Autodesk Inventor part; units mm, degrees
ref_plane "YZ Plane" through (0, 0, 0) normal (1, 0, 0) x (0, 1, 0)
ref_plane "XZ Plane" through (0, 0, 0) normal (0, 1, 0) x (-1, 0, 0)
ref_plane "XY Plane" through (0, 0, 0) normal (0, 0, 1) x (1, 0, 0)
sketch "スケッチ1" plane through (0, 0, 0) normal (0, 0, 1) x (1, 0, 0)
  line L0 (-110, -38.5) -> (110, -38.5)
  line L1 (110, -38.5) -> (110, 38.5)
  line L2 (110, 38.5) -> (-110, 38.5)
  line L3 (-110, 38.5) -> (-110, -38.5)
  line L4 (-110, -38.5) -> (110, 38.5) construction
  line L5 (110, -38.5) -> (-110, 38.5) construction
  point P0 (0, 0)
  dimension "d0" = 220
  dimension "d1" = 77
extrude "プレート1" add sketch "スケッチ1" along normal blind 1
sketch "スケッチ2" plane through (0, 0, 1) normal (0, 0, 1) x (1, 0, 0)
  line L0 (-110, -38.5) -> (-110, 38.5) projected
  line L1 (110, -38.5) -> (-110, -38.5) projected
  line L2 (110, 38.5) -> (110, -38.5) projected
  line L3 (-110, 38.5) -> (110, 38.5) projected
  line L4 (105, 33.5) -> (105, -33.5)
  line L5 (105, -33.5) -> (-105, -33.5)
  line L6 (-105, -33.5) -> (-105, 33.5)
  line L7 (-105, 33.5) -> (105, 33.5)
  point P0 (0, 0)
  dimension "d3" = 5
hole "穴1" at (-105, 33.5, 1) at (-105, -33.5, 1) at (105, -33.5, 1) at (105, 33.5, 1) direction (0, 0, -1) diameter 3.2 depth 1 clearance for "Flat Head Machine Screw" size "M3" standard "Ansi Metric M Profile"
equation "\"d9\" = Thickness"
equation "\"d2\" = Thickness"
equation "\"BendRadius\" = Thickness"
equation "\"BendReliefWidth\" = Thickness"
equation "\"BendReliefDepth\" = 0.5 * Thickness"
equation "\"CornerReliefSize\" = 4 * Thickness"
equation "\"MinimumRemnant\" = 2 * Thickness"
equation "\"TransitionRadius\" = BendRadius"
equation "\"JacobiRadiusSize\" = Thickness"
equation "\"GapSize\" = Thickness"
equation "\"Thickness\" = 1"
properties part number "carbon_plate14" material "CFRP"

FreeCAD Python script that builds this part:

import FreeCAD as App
import Part
import Sketcher

V = App.Vector
Q = App.Units.Quantity


def add_polygon(sketch, points):
    """Adds a closed chain of lines whose ends are joined by coincident constraints."""
    first, n = sketch.GeometryCount, len(points)
    for a, b in zip(points, points[1:] + points[:1]):
        sketch.addGeometry(Part.LineSegment(App.Vector(*a, 0), App.Vector(*b, 0)), False)
    for i in range(n):
        sketch.addConstraint(Sketcher.Constraint("Coincident", first + i, 2, first + (i + 1) % n, 1))

doc = App.newDocument("Part")
params = doc.addObject("Spreadsheet::Sheet", "Params")
for row, (alias, value) in enumerate([
    ("sketch1_width", "220 mm"),
    ("sketch1_height", "77 mm"),
    ("pad1_length", "1 mm"),
    ("sketch2_diameter", "3.2 mm"),
    ("hole_diameter", "3.2 mm"),
    ("hole_depth", "1 mm"),
], start=1):
    params.set(f"A{row}", alias)
    params.set(f"B{row}", "=" + value)
    params.setAlias(f"B{row}", alias)

body = doc.addObject("PartDesign::Body", "Body")

sketch1 = body.newObject("Sketcher::SketchObject", "Sketch")
sketch1.AttachmentSupport = (doc.getObject("XY_Plane"), [""])
sketch1.MapMode = "FlatFace"
add_polygon(sketch1, [(-110, 38), (-110, -38), (110, -38), (110, 38)])
sketch1.addConstraint([
    Sketcher.Constraint("Vertical", 0),
    Sketcher.Constraint("Horizontal", 1),
    Sketcher.Constraint("Vertical", 2),
    Sketcher.Constraint("Horizontal", 3),
    Sketcher.Constraint("Symmetric", 0, 2, 2, 2, -1, 1),
    Sketcher.Constraint("DistanceX", 1, 1, 1, 2, Q("220 mm")),
    Sketcher.Constraint("DistanceY", 0, 2, 0, 1, Q("77 mm")),
])
sketch1.setExpression("Constraints[9]", "Params.sketch1_width")
sketch1.setExpression("Constraints[10]", "Params.sketch1_height")
pad1 = body.newObject("PartDesign::Pad", "Pad")
pad1.Profile = sketch1
pad1.setExpression("Length", "Params.pad1_length")

sketch2 = body.newObject("Sketcher::SketchObject", "Sketch001")
sketch2.AttachmentSupport = (doc.getObject("XY_Plane"), [""])
sketch2.MapMode = "FlatFace"
sketch2.AttachmentOffset = App.Placement(V(0, 0, 1), App.Rotation())
sketch2.addGeometry([
    Part.Circle(V(-105, 33.5, 0), V(0, 0, 1), 1.6),
    Part.Circle(V(-105, -33.5, 0), V(0, 0, 1), 1.6),
    Part.Circle(V(105, -33.5, 0), V(0, 0, 1), 1.6),
    Part.Circle(V(105, 33.5, 0), V(0, 0, 1), 1.6),
], False)
sketch2.addConstraint([
    Sketcher.Constraint("Equal", 0, 1),
    Sketcher.Constraint("Equal", 1, 2),
    Sketcher.Constraint("Equal", 2, 3),
    Sketcher.Constraint("Symmetric", 0, 3, 2, 3, -1, 1),
    Sketcher.Constraint("Symmetric", 1, 3, 3, 3, -1, 1),
    Sketcher.Constraint("Symmetric", 1, 3, 2, 3, -2),
    Sketcher.Constraint("Diameter", 0, Q("3.2 mm")),
    Sketcher.Constraint("DistanceX", 0, 3, -1, 1, Q("105 mm")),
    Sketcher.Constraint("DistanceY", 1, 3, 0, 3, Q("67 mm")),
])
sketch2.setExpression("Constraints[6]", "Params.sketch2_diameter")
doc.recompute()
hole = body.newObject("PartDesign::Hole", "Hole")
hole.Profile = sketch2
hole.ThreadType = "None"
hole.setExpression("Diameter", "Params.hole_diameter")
hole.DepthType = "Dimension"
hole.setExpression("Depth", "Params.hole_depth")
hole.DrillPoint = "Flat"

doc.recompute()
